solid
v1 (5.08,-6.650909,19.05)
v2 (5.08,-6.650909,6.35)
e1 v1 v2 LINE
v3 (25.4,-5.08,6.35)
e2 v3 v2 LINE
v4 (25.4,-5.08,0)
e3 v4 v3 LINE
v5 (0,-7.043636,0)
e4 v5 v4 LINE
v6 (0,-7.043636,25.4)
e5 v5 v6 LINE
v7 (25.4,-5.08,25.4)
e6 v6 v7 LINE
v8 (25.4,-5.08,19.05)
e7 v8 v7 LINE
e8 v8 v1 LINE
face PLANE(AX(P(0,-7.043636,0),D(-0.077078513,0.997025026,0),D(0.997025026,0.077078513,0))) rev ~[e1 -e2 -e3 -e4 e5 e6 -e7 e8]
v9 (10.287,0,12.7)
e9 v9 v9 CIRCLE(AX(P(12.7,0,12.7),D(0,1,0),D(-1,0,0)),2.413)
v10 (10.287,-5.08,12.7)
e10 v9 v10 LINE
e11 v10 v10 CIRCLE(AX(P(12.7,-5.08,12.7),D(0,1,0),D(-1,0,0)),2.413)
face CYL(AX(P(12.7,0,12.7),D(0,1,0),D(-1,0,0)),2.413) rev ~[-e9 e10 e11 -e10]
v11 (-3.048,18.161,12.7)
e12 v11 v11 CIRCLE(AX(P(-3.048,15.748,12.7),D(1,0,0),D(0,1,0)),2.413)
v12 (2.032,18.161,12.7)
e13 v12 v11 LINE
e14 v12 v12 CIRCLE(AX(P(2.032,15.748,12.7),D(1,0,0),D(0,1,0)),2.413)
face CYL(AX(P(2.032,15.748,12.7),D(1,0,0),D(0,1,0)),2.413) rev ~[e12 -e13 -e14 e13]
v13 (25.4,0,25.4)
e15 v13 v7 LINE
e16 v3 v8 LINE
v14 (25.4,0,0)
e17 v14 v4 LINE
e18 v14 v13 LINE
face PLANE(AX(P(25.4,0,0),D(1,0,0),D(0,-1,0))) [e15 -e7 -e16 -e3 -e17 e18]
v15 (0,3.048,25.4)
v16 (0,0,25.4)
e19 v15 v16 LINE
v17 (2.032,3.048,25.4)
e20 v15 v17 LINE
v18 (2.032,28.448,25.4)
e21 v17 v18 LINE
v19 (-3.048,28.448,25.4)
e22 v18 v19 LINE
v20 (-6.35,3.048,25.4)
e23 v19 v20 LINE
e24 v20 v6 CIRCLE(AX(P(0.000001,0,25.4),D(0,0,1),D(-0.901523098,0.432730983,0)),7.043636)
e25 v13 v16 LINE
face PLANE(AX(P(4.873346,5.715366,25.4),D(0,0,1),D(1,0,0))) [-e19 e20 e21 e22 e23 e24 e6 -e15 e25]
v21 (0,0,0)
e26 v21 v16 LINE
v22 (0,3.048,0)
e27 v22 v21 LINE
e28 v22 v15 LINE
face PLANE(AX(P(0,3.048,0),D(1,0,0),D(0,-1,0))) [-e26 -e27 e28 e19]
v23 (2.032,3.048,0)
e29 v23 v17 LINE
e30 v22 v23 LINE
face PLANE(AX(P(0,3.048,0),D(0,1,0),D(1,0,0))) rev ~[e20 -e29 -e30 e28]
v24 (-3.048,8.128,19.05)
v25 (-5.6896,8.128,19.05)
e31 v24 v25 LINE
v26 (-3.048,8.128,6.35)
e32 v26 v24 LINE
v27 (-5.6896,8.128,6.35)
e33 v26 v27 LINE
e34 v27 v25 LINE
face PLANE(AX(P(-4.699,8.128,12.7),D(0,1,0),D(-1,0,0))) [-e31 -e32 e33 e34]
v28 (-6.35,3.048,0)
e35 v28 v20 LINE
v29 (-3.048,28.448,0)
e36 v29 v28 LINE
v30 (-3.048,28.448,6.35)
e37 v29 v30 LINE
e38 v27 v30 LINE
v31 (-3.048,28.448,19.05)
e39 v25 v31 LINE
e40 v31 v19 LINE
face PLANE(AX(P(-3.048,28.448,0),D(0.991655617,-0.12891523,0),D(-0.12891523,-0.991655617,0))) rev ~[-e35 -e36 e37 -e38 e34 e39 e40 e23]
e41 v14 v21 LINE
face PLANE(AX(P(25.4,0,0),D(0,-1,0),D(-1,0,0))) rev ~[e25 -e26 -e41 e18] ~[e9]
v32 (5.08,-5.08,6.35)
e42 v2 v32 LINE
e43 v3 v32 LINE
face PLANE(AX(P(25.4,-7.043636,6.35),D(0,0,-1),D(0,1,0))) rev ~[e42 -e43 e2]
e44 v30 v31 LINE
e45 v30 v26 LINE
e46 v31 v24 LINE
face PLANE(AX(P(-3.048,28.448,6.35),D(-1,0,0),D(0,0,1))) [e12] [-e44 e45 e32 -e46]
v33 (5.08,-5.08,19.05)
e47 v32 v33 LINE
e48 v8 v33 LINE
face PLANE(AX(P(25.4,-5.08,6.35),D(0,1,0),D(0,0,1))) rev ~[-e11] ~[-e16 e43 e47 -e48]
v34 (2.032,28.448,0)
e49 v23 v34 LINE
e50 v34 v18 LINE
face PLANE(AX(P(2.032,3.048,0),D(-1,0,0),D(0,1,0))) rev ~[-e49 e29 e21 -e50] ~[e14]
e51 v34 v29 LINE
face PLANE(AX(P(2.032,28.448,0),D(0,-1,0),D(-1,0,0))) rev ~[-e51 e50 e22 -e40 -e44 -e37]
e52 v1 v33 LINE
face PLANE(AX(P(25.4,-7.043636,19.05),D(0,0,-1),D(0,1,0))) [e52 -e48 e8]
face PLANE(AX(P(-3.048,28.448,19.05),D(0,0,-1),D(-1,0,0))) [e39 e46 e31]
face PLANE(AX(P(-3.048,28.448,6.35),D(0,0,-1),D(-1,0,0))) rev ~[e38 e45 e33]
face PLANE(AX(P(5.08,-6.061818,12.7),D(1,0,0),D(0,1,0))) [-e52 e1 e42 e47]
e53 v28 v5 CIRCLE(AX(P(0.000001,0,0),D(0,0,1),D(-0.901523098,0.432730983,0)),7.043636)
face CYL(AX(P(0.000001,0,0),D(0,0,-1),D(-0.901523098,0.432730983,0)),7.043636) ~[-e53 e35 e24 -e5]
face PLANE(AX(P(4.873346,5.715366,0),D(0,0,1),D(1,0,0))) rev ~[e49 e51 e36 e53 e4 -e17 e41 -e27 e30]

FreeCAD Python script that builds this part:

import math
import FreeCAD as App
import Part
import Sketcher

V = App.Vector
Q = App.Units.Quantity

doc = App.newDocument("Part")
body = doc.addObject("PartDesign::Body", "Body")

sketch1 = body.newObject("Sketcher::SketchObject", "Sketch")
sketch1.AttachmentSupport = (doc.getObject("XY_Plane"), [""])
sketch1.MapMode = "FlatFace"
sketch1.addGeometry(Part.LineSegment(V(25.4, 0, 0), V(0, 0, 0)), False)
sketch1.addGeometry(Part.LineSegment(V(0, 0, 0), V(0, 3, 0)), False)
sketch1.addGeometry(Part.LineSegment(V(0, 3, 0), V(2, 3, 0)), False)
sketch1.addGeometry(Part.LineSegment(V(2, 3, 0), V(2, 28.4, 0)), False)
sketch1.addGeometry(Part.LineSegment(V(2, 28.4, 0), V(-3, 28.4, 0)), False)
sketch1.addGeometry(Part.LineSegment(V(-3, 28.4, 0), V(-6.3, 3, 0)), False)
sketch1.addGeometry(Part.ArcOfCircle(Part.Circle(V(0, 0, 0), V(0, 0, 1), 7), math.radians(154), math.radians(270)), False)
sketch1.addGeometry(Part.LineSegment(V(0, -7, 0), V(25.4, -5.1, 0)), False)
sketch1.addGeometry(Part.LineSegment(V(25.4, -5.1, 0), V(25.4, 0, 0)), False)
sketch1.addConstraint(Sketcher.Constraint("Coincident", 0, 2, 1, 1))
sketch1.addConstraint(Sketcher.Constraint("Coincident", 1, 2, 2, 1))
sketch1.addConstraint(Sketcher.Constraint("Coincident", 2, 2, 3, 1))
sketch1.addConstraint(Sketcher.Constraint("Coincident", 3, 2, 4, 1))
sketch1.addConstraint(Sketcher.Constraint("Coincident", 4, 2, 5, 1))
sketch1.addConstraint(Sketcher.Constraint("Coincident", 5, 2, 6, 1))
sketch1.addConstraint(Sketcher.Constraint("Coincident", 6, 2, 7, 1))
sketch1.addConstraint(Sketcher.Constraint("Coincident", 7, 2, 8, 1))
sketch1.addConstraint(Sketcher.Constraint("Coincident", 8, 2, 0, 1))
sketch1.addConstraint(Sketcher.Constraint("Horizontal", 0))
sketch1.addConstraint(Sketcher.Constraint("Vertical", 1))
sketch1.addConstraint(Sketcher.Constraint("Horizontal", 2))
sketch1.addConstraint(Sketcher.Constraint("Vertical", 3))
sketch1.addConstraint(Sketcher.Constraint("Horizontal", 4))
sketch1.addConstraint(Sketcher.Constraint("Vertical", 8))
sketch1.addConstraint(Sketcher.Constraint("Coincident", 6, 3, -1, 1))
sketch1.addConstraint(Sketcher.Constraint("Coincident", 0, 2, -1, 1))
sketch1.addConstraint(Sketcher.Constraint("PointOnObject", 6, 2, -2))
sketch1.addConstraint(Sketcher.Constraint("Horizontal", 2, 2, 5, 2))
sketch1.addConstraint(Sketcher.Constraint("Equal", 0, 3))
sketch1.addConstraint(Sketcher.Constraint("Equal", 4, 8))
sketch1.addConstraint(Sketcher.Constraint("DistanceX", 0, 2, 0, 1, Q("1 in")))
sketch1.addConstraint(Sketcher.Constraint("DistanceX", 4, 2, 4, 1, Q("0.2 in")))
sketch1.addConstraint(Sketcher.Constraint("DistanceX", 2, 1, 2, 2, Q("0.08 in")))
sketch1.addConstraint(Sketcher.Constraint("DistanceY", 1, 1, 1, 2, Q("0.12 in")))
sketch1.addConstraint(Sketcher.Constraint("DistanceX", 5, 2, -1, 1, Q("0.25 in")))
pad1 = body.newObject("PartDesign::Pad", "Pad")
pad1.Profile = sketch1
pad1.Length = Q("1 in")

sketch2 = body.newObject("Sketcher::SketchObject", "Sketch001")
sketch2.AttachmentSupport = (doc.getObject("YZ_Plane"), [""])
sketch2.MapMode = "FlatFace"
sketch2.AttachmentOffset = App.Placement(V(0, 0, 0.08 * 25.4), App.Rotation())
sketch2.addGeometry(Part.Circle(V(15.7, 12.7, 0), V(0, 0, 1), 2.4), False)
sketch2.addConstraint(Sketcher.Constraint("Diameter", 0, Q("0.19 in")))
sketch2.addConstraint(Sketcher.Constraint("DistanceY", -1, 1, 0, 3, Q("0.5 in")))
sketch2.addConstraint(Sketcher.Constraint("DistanceX", -1, 1, 0, 3, Q("0.62 in")))
pocket1 = body.newObject("PartDesign::Pocket", "Pocket")
pocket1.Profile = sketch2
pocket1.Length = Q("0.4 in")

sketch3 = body.newObject("Sketcher::SketchObject", "Sketch002")
sketch3.AttachmentSupport = (doc.getObject("XZ_Plane"), [""])
sketch3.MapMode = "FlatFace"
sketch3.addGeometry(Part.Circle(V(12.7, 12.7, 0), V(0, 0, 1), 2.4), False)
sketch3.addConstraint(Sketcher.Constraint("Diameter", 0, Q("0.19 in")))
sketch3.addConstraint(Sketcher.Constraint("DistanceX", -1, 1, 0, 3, Q("0.5 in")))
sketch3.addConstraint(Sketcher.Constraint("DistanceY", -1, 1, 0, 3, Q("0.5 in")))
pocket2 = body.newObject("PartDesign::Pocket", "Pocket001")
pocket2.Profile = sketch3
pocket2.Length = Q("0.4 in")
pocket2.Reversed = True

sketch4 = body.newObject("Sketcher::SketchObject", "Sketch003")
sketch4.AttachmentSupport = (doc.getObject("XZ_Plane"), [""])
sketch4.MapMode = "FlatFace"
sketch4.AttachmentOffset = App.Placement(V(0, 0, -1.12 * 25.4), App.Rotation())
sketch4.addGeometry(Part.LineSegment(V(-3, 19.1, 0), V(-3, 6.3, 0)), False)
sketch4.addGeometry(Part.LineSegment(V(-3, 6.3, 0), V(-6.3, 6.3, 0)), False)
sketch4.addGeometry(Part.LineSegment(V(-6.3, 6.3, 0), V(-6.3, 19.1, 0)), False)
sketch4.addGeometry(Part.LineSegment(V(-6.3, 19.1, 0), V(-3, 19.1, 0)), False)
sketch4.addConstraint(Sketcher.Constraint("Coincident", 0, 2, 1, 1))
sketch4.addConstraint(Sketcher.Constraint("Coincident", 1, 2, 2, 1))
sketch4.addConstraint(Sketcher.Constraint("Coincident", 2, 2, 3, 1))
sketch4.addConstraint(Sketcher.Constraint("Coincident", 3, 2, 0, 1))
sketch4.addConstraint(Sketcher.Constraint("Vertical", 0))
sketch4.addConstraint(Sketcher.Constraint("Horizontal", 1))
sketch4.addConstraint(Sketcher.Constraint("Vertical", 2))
sketch4.addConstraint(Sketcher.Constraint("Horizontal", 3))
sketch4.addConstraint(Sketcher.Constraint("DistanceY", 0, 2, 0, 1, Q("0.5 in")))
sketch4.addConstraint(Sketcher.Constraint("DistanceX", 1, 2, 1, 1, Q("0.13 in")))
sketch4.addConstraint(Sketcher.Constraint("DistanceX", 0, 2, -1, 1, Q("0.12 in")))
sketch4.addConstraint(Sketcher.Constraint("DistanceY", -1, 1, 0, 2, Q("0.25 in")))
pocket3 = body.newObject("PartDesign::Pocket", "Pocket002")
pocket3.Profile = sketch4
pocket3.Length = Q("0.8 in")
pocket3.Reversed = True

sketch5 = body.newObject("Sketcher::SketchObject", "Sketch004")
sketch5.AttachmentSupport = (doc.getObject("YZ_Plane"), [""])
sketch5.MapMode = "FlatFace"
sketch5.AttachmentOffset = App.Placement(V(0, 0, 1 * 25.4), App.Rotation())
sketch5.addGeometry(Part.LineSegment(V(-7, 19.1, 0), V(-7, 6.3, 0)), False)
sketch5.addGeometry(Part.LineSegment(V(-7, 6.3, 0), V(-5.1, 6.3, 0)), False)
sketch5.addGeometry(Part.LineSegment(V(-5.1, 6.3, 0), V(-5.1, 19.1, 0)), False)
sketch5.addGeometry(Part.LineSegment(V(-5.1, 19.1, 0), V(-7, 19.1, 0)), False)
sketch5.addConstraint(Sketcher.Constraint("Coincident", 0, 2, 1, 1))
sketch5.addConstraint(Sketcher.Constraint("Coincident", 1, 2, 2, 1))
sketch5.addConstraint(Sketcher.Constraint("Coincident", 2, 2, 3, 1))
sketch5.addConstraint(Sketcher.Constraint("Coincident", 3, 2, 0, 1))
sketch5.addConstraint(Sketcher.Constraint("Vertical", 0))
sketch5.addConstraint(Sketcher.Constraint("Horizontal", 1))
sketch5.addConstraint(Sketcher.Constraint("Vertical", 2))
sketch5.addConstraint(Sketcher.Constraint("Horizontal", 3))
sketch5.addConstraint(Sketcher.Constraint("DistanceY", 0, 2, 0, 1, Q("0.5 in")))
sketch5.addConstraint(Sketcher.Constraint("DistanceX", 1, 2, -1, 1, Q("0.2 in")))
sketch5.addConstraint(Sketcher.Constraint("DistanceY", -1, 1, 0, 2, Q("0.25 in")))
sketch5.addConstraint(Sketcher.Constraint("DistanceX", 1, 1, 1, 2, Q("1.963636 mm")))
pocket4 = body.newObject("PartDesign::Pocket", "Pocket003")
pocket4.Profile = sketch5
pocket4.Length = Q("0.8 in")

doc.recompute()
